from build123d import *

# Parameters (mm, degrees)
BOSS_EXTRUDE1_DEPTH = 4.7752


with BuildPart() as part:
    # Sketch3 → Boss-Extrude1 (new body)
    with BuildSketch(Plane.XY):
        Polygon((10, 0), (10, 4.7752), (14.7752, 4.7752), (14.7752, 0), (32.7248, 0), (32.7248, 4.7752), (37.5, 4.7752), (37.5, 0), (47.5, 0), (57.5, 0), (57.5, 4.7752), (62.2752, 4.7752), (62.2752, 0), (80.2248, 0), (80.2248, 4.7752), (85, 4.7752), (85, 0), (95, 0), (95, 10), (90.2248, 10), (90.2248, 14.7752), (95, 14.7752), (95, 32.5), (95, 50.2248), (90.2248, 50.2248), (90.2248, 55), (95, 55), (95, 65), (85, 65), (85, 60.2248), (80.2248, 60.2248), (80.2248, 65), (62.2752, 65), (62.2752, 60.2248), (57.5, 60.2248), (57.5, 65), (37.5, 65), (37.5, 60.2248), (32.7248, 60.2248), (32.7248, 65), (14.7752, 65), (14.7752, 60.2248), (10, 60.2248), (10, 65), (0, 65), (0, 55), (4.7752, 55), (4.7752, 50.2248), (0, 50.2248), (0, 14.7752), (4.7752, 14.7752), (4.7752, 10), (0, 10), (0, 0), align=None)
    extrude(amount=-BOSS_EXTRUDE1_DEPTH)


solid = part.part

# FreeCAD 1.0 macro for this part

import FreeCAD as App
import Part
import Sketcher

V = App.Vector
Q = App.Units.Quantity


def add_polygon(sketch, points):
    """Adds a closed chain of lines whose ends are joined by coincident constraints."""
    first, n = sketch.GeometryCount, len(points)
    for a, b in zip(points, points[1:] + points[:1]):
        sketch.addGeometry(Part.LineSegment(App.Vector(*a, 0), App.Vector(*b, 0)), False)
    for i in range(n):
        sketch.addConstraint(Sketcher.Constraint("Coincident", first + i, 2, first + (i + 1) % n, 1))

doc = App.newDocument("Part")
params = doc.addObject("Spreadsheet::Sheet", "Params")
for row, (alias, value) in enumerate([
    ("sketch1_width", "20 mm"),
    ("sketch1_width2", "10 mm"),
    ("pad1_length", "4.7752 mm"),
], start=1):
    params.set(f"A{row}", alias)
    params.set(f"B{row}", "=" + value)
    params.setAlias(f"B{row}", alias)

body = doc.addObject("PartDesign::Body", "Body")

sketch1 = body.newObject("Sketcher::SketchObject", "Sketch")
sketch1.AttachmentSupport = (doc.getObject("XY_Plane"), [""])
sketch1.MapMode = "FlatFace"
add_polygon(sketch1, [(10, 0), (10, 4.8), (14.8, 4.8), (14.8, 0), (32.7, 0), (32.7, 4.8), (37.5, 4.8), (37.5, 0), (57.5, 0), (57.5, 4.8), (62.3, 4.8), (62.3, 0), (80.2, 0), (80.2, 4.8), (85, 4.8), (85, 0), (95, 0), (95, 10), (90.2, 10), (90.2, 14.8), (95, 14.8), (95, 50.2), (90.2, 50.2), (90.2, 55), (95, 55), (95, 65), (85, 65), (85, 60.2), (80.2, 60.2), (80.2, 65), (62.3, 65), (62.3, 60.2), (57.5, 60.2), (57.5, 65), (37.5, 65), (37.5, 60.2), (32.7, 60.2), (32.7, 65), (14.8, 65), (14.8, 60.2), (10, 60.2), (10, 65), (0, 65), (0, 55), (4.8, 55), (4.8, 50.2), (0, 50.2), (0, 14.8), (4.8, 14.8), (4.8, 10), (0, 10), (0, 0)])
sketch1.addConstraint([
    Sketcher.Constraint("Vertical", 0),
    Sketcher.Constraint("Horizontal", 1),
    Sketcher.Constraint("Vertical", 2),
    Sketcher.Constraint("Horizontal", 3),
    Sketcher.Constraint("Vertical", 4),
    Sketcher.Constraint("Horizontal", 5),
    Sketcher.Constraint("Vertical", 6),
    Sketcher.Constraint("Horizontal", 7),
    Sketcher.Constraint("Vertical", 8),
    Sketcher.Constraint("Horizontal", 9),
    Sketcher.Constraint("Vertical", 10),
    Sketcher.Constraint("Horizontal", 11),
    Sketcher.Constraint("Vertical", 12),
    Sketcher.Constraint("Horizontal", 13),
    Sketcher.Constraint("Vertical", 14),
    Sketcher.Constraint("Horizontal", 15),
    Sketcher.Constraint("Vertical", 16),
    Sketcher.Constraint("Horizontal", 17),
    Sketcher.Constraint("Vertical", 18),
    Sketcher.Constraint("Horizontal", 19),
    Sketcher.Constraint("Vertical", 20),
    Sketcher.Constraint("Horizontal", 21),
    Sketcher.Constraint("Vertical", 22),
    Sketcher.Constraint("Horizontal", 23),
    Sketcher.Constraint("Vertical", 24),
    Sketcher.Constraint("Horizontal", 25),
    Sketcher.Constraint("Vertical", 26),
    Sketcher.Constraint("Horizontal", 27),
    Sketcher.Constraint("Vertical", 28),
    Sketcher.Constraint("Horizontal", 29),
    Sketcher.Constraint("Vertical", 30),
    Sketcher.Constraint("Horizontal", 31),
    Sketcher.Constraint("Vertical", 32),
    Sketcher.Constraint("Horizontal", 33),
    Sketcher.Constraint("Vertical", 34),
    Sketcher.Constraint("Horizontal", 35),
    Sketcher.Constraint("Vertical", 36),
    Sketcher.Constraint("Horizontal", 37),
    Sketcher.Constraint("Vertical", 38),
    Sketcher.Constraint("Horizontal", 39),
    Sketcher.Constraint("Vertical", 40),
    Sketcher.Constraint("Horizontal", 41),
    Sketcher.Constraint("Vertical", 42),
    Sketcher.Constraint("Horizontal", 43),
    Sketcher.Constraint("Vertical", 44),
    Sketcher.Constraint("Horizontal", 45),
    Sketcher.Constraint("Vertical", 46),
    Sketcher.Constraint("Horizontal", 47),
    Sketcher.Constraint("Vertical", 48),
    Sketcher.Constraint("Horizontal", 49),
    Sketcher.Constraint("Vertical", 50),
    Sketcher.Constraint("Horizontal", 51),
    Sketcher.Constraint("Coincident", 50, 2, -1, 1),
    Sketcher.Constraint("PointOnObject", 2, 2, -1),
    Sketcher.Constraint("PointOnObject", 6, 2, -1),
    Sketcher.Constraint("PointOnObject", 10, 2, -1),
    Sketcher.Constraint("PointOnObject", 14, 2, -1),
    Sketcher.Constraint("PointOnObject", 41, 2, -2),
    Sketcher.Constraint("PointOnObject", 45, 2, -2),
    Sketcher.Constraint("Horizontal", 1, 2, 4, 2),
    Sketcher.Constraint("Horizontal", 5, 2, 8, 2),
    Sketcher.Constraint("Horizontal", 9, 2, 12, 2),
    Sketcher.Constraint("Horizontal", 25, 2, 28, 2),
    Sketcher.Constraint("Horizontal", 27, 2, 30, 2),
    Sketcher.Constraint("Horizontal", 29, 2, 32, 2),
    Sketcher.Constraint("Horizontal", 31, 2, 34, 2),
    Sketcher.Constraint("Horizontal", 33, 2, 36, 2),
    Sketcher.Constraint("Horizontal", 35, 2, 38, 2),
    Sketcher.Constraint("Horizontal", 37, 2, 40, 2),
    Sketcher.Constraint("Horizontal", 23, 2, 42, 2),
    Sketcher.Constraint("Horizontal", 21, 2, 44, 2),
    Sketcher.Constraint("Horizontal", 19, 2, 46, 2),
    Sketcher.Constraint("Horizontal", 17, 2, 48, 2),
    Sketcher.Constraint("Vertical", 16, 2, 19, 2),
    Sketcher.Constraint("Vertical", 18, 2, 21, 2),
    Sketcher.Constraint("Vertical", 20, 2, 23, 2),
    Sketcher.Constraint("Vertical", 14, 2, 25, 2),
    Sketcher.Constraint("Vertical", 12, 2, 27, 2),
    Sketcher.Constraint("Vertical", 10, 2, 29, 2),
    Sketcher.Constraint("Vertical", 8, 2, 31, 2),
    Sketcher.Constraint("Vertical", 6, 2, 33, 2),
    Sketcher.Constraint("Vertical", 4, 2, 35, 2),
    Sketcher.Constraint("Vertical", 2, 2, 37, 2),
    Sketcher.Constraint("Vertical", 0, 2, 39, 2),
    Sketcher.Constraint("Vertical", 44, 2, 47, 2),
    Sketcher.Constraint("Equal", 1, 5),
    Sketcher.Constraint("Equal", 5, 9),
    Sketcher.Constraint("Equal", 3, 11),
    Sketcher.Constraint("Equal", 9, 13),
    Sketcher.Constraint("Equal", 13, 17),
    Sketcher.Constraint("Equal", 25, 41),
    Sketcher.Constraint("Equal", 39, 43),
    Sketcher.Constraint("Equal", 49, 0),
    Sketcher.Constraint("Equal", 51, 16),
    Sketcher.Constraint("Equal", 14, 18),
    Sketcher.Constraint("Equal", 18, 22),
    Sketcher.Constraint("Equal", 16, 24),
    Sketcher.Constraint("Equal", 22, 26),
    Sketcher.Constraint("DistanceX", 7, 1, 7, 2, Q("20 mm")),
    Sketcher.Constraint("DistanceX", 15, 1, 15, 2, Q("10 mm")),
    Sketcher.Constraint("DistanceX", -1, 1, 13, 2, Q("85 mm")),
    Sketcher.Constraint("DistanceY", -1, 1, 22, 2, Q("55 mm")),
    Sketcher.Constraint("DistanceX", 1, 1, 1, 2, Q("4.7752 mm")),
])
sketch1.setExpression("Constraints[150]", "Params.sketch1_width")
sketch1.setExpression("Constraints[151]", "Params.sketch1_width2")
pad1 = body.newObject("PartDesign::Pad", "Pad")
pad1.Profile = sketch1
pad1.setExpression("Length", "Params.pad1_length")
pad1.Reversed = True

doc.recompute()
